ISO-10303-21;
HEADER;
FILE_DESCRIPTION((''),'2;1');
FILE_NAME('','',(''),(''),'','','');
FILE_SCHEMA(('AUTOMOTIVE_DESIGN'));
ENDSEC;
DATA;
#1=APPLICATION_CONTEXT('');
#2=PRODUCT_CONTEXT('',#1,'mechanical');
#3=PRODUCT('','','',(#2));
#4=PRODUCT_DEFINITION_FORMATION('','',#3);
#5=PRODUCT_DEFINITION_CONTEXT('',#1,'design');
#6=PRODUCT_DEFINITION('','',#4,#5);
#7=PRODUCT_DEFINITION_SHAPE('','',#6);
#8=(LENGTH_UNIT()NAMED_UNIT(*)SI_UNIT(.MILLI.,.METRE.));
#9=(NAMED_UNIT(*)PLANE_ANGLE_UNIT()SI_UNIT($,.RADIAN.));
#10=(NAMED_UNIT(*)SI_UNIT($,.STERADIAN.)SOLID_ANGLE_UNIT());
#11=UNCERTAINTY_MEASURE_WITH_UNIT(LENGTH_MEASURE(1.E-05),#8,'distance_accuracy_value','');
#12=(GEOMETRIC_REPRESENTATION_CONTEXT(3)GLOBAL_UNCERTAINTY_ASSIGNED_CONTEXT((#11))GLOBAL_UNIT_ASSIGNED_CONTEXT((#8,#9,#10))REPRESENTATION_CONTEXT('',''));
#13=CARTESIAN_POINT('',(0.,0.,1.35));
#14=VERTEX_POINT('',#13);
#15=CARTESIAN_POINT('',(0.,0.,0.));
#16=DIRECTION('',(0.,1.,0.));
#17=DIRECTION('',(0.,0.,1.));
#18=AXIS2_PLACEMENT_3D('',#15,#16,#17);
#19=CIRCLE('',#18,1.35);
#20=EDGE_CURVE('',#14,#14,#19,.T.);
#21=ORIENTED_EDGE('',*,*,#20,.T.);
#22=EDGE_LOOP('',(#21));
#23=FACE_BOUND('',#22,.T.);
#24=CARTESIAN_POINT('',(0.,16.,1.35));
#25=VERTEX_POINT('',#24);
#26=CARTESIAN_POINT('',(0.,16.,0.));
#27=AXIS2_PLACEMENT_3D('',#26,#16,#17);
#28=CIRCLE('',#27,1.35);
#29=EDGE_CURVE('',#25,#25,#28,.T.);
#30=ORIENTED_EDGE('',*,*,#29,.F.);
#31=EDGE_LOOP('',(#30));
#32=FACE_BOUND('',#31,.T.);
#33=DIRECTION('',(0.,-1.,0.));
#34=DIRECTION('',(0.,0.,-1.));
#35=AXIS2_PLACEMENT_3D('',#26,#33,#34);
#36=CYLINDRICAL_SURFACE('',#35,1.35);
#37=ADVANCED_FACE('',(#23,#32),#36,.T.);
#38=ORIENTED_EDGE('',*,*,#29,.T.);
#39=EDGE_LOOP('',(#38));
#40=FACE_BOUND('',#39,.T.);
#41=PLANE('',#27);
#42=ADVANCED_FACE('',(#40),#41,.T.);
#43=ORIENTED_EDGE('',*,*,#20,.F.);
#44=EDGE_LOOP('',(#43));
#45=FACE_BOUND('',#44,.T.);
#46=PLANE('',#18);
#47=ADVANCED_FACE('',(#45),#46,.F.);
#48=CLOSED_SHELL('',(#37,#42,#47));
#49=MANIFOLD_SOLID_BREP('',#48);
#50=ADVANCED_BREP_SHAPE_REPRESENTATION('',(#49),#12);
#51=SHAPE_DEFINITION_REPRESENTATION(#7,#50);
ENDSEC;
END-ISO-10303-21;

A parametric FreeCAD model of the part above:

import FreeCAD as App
import Part
import Sketcher
from FreeCAD import Vector

doc = App.newDocument("Part")
body = doc.addObject("PartDesign::Body", "Body")

sketch1 = body.newObject("Sketcher::SketchObject", "Sketch")
sketch1.AttachmentSupport = (doc.getObject("XZ_Plane"), [""])
sketch1.MapMode = "FlatFace"
sketch1.addGeometry(Part.Circle(Vector(0, 0, 0), Vector(0, 0, 1), 1.4), False)
sketch1.addConstraint(Sketcher.Constraint("Coincident", 0, 3, -1, 1))
sketch1.addConstraint(Sketcher.Constraint("Diameter", 0, 2.7))
pad1 = body.newObject("PartDesign::Pad", "Pad")
pad1.Profile = sketch1
pad1.Length = 16
pad1.Reversed = True

doc.recompute()
